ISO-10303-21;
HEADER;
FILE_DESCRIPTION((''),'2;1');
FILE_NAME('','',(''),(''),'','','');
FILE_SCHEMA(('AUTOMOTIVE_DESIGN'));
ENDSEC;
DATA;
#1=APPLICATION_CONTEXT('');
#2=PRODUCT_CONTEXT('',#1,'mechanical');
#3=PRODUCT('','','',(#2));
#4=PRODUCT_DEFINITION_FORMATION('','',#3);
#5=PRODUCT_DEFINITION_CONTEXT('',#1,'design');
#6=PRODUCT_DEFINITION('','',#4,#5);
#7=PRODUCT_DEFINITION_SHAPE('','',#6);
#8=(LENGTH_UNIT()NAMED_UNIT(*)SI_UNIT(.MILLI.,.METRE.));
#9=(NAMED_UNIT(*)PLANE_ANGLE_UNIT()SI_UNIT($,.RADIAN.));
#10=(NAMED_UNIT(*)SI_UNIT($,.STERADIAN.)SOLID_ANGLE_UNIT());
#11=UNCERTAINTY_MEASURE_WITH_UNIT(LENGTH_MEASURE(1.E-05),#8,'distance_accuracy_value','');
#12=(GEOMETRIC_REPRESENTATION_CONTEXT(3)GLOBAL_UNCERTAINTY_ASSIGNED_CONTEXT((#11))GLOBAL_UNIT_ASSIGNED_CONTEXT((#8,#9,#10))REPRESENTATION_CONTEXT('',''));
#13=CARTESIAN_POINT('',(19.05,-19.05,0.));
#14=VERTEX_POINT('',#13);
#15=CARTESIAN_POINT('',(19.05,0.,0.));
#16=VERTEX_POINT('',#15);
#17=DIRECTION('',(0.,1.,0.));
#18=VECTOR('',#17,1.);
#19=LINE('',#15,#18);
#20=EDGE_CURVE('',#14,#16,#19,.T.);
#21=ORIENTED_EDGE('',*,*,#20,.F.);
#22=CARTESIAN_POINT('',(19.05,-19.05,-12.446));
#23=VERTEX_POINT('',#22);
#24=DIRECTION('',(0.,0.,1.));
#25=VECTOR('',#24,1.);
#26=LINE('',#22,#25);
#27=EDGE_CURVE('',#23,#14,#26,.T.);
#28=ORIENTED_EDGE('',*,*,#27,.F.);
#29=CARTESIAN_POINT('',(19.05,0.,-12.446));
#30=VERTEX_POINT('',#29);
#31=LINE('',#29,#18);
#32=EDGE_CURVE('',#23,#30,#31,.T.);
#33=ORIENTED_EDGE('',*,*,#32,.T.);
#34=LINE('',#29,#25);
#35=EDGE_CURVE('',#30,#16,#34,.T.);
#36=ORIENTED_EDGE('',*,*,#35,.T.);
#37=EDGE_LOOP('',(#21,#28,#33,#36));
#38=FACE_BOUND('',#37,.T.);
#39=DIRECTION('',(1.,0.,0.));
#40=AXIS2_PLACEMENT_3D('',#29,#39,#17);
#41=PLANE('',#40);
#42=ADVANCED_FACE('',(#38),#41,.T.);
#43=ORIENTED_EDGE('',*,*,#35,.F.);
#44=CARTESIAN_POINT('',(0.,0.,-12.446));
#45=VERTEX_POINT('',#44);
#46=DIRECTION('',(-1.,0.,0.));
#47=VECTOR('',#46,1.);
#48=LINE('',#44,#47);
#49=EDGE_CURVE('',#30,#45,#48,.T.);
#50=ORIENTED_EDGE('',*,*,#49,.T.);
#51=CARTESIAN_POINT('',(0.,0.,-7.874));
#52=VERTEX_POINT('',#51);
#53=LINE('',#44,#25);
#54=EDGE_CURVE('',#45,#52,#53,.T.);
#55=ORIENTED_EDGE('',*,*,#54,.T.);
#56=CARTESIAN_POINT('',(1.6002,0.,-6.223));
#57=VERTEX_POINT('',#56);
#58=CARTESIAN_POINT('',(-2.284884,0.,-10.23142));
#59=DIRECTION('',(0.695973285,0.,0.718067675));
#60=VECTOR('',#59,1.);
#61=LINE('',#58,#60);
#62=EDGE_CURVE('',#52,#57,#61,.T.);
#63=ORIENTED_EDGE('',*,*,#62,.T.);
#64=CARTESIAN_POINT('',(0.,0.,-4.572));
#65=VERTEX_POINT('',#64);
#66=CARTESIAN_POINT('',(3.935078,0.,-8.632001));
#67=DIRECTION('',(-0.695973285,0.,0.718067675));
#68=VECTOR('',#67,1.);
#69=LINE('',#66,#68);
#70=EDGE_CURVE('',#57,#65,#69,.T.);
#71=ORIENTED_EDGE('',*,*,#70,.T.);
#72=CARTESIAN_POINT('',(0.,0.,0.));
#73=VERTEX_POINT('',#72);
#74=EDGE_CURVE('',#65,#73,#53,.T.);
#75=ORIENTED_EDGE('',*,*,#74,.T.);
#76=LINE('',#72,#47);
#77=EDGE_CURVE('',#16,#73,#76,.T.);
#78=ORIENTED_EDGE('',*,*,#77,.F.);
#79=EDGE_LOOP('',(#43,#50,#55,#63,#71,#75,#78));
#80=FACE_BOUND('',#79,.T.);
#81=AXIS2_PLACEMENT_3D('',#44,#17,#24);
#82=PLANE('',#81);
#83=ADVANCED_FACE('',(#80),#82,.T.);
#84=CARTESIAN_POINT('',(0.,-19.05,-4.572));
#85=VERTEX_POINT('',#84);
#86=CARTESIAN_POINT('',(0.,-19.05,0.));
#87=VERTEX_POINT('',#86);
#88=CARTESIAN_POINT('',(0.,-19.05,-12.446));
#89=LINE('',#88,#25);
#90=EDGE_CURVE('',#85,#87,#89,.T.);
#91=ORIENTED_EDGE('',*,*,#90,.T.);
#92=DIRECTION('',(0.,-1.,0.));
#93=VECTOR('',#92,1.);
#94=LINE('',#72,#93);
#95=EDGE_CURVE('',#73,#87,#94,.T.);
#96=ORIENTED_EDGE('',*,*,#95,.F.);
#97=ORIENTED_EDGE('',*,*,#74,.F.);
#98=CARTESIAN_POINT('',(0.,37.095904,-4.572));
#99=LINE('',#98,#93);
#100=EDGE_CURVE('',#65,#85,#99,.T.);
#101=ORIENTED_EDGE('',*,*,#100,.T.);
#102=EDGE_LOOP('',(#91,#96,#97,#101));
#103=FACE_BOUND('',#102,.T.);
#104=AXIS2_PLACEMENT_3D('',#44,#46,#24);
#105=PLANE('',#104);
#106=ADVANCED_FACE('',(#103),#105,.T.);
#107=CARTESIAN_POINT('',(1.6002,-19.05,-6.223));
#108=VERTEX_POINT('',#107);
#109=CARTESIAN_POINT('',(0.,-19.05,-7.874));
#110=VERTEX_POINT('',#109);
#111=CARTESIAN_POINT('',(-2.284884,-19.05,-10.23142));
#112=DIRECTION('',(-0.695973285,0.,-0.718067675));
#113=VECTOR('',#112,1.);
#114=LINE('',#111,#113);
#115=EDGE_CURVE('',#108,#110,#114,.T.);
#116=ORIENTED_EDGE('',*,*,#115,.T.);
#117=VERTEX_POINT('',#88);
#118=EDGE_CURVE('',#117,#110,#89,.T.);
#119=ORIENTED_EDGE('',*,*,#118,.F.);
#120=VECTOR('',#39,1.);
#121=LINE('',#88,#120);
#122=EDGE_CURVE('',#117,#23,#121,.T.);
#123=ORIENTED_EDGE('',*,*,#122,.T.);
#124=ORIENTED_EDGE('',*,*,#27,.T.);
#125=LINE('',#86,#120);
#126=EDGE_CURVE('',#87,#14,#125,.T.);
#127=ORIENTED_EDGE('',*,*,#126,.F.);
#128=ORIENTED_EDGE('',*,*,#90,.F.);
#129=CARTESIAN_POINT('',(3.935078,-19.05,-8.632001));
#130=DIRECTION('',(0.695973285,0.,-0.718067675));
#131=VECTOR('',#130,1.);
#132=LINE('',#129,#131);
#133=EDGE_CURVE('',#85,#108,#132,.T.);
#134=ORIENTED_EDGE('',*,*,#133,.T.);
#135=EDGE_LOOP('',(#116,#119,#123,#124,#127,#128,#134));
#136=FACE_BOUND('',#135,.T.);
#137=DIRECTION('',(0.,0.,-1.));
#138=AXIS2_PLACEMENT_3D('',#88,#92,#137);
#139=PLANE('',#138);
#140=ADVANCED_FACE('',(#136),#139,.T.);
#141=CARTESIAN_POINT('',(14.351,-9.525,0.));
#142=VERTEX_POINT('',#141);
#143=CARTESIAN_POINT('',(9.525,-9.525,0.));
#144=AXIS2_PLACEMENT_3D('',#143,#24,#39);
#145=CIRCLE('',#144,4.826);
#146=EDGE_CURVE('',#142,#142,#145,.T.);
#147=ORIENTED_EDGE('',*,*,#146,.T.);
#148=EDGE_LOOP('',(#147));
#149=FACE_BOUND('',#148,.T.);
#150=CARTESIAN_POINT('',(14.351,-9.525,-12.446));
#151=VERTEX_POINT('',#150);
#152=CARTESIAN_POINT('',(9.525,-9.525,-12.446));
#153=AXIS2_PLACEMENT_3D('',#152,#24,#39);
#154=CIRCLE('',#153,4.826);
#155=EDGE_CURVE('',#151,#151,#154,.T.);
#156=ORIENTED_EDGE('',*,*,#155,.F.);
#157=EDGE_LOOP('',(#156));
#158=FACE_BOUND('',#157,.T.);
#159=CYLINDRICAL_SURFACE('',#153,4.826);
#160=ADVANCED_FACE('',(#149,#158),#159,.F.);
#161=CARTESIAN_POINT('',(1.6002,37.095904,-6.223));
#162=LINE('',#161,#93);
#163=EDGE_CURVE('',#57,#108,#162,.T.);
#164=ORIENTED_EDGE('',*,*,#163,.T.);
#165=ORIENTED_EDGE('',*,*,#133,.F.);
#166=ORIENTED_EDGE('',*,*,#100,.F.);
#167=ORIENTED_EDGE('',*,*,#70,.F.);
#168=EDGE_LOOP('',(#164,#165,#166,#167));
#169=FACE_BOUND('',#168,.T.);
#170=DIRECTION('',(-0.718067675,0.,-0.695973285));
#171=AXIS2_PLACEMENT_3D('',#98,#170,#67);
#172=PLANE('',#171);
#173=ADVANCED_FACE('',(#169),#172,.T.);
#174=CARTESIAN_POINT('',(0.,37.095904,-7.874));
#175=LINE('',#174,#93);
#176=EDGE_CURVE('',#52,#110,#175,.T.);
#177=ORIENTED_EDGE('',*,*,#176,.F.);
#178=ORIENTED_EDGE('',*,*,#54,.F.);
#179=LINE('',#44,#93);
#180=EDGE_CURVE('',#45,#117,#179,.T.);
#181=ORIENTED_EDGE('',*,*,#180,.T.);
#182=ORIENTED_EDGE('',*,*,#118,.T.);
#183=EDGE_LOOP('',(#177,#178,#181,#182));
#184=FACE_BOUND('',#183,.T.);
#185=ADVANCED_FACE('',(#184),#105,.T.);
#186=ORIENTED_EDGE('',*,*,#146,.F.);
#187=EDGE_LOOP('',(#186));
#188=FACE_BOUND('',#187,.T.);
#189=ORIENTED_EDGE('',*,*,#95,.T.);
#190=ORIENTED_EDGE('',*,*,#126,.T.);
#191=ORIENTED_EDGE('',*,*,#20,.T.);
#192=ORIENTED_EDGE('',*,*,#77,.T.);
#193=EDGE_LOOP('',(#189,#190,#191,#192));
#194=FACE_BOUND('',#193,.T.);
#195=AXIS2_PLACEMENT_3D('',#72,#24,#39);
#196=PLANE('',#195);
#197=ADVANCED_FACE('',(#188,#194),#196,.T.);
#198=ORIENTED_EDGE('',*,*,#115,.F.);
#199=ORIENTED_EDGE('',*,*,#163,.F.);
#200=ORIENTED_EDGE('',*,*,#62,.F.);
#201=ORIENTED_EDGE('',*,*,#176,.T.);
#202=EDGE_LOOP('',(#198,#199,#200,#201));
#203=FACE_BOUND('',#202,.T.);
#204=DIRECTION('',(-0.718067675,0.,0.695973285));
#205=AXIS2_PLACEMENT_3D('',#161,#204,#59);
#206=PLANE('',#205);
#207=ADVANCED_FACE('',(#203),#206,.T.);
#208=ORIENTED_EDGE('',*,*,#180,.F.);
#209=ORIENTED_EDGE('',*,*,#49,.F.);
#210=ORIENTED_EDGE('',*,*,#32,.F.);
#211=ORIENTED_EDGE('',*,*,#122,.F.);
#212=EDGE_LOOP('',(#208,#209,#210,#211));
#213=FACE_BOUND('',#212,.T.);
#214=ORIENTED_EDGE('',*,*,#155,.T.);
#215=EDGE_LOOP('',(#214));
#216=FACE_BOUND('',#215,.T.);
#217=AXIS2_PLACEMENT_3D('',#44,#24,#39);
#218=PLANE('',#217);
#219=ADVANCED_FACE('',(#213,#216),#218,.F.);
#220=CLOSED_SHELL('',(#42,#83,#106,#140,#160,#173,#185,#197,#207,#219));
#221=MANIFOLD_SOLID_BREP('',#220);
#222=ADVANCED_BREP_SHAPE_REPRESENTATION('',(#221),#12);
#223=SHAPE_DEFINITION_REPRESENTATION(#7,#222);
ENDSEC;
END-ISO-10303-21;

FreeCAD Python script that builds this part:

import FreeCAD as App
import Part
import Sketcher
Q = App.Units.Quantity


def add_polygon(sketch, points):
    """Adds a closed chain of lines whose ends are joined by coincident constraints."""
    first, n = sketch.GeometryCount, len(points)
    for a, b in zip(points, points[1:] + points[:1]):
        sketch.addGeometry(Part.LineSegment(App.Vector(*a, 0), App.Vector(*b, 0)), False)
    for i in range(n):
        sketch.addConstraint(Sketcher.Constraint("Coincident", first + i, 2, first + (i + 1) % n, 1))

doc = App.newDocument("Part")
params = doc.addObject("Spreadsheet::Sheet", "Params")
for row, (alias, value) in enumerate([
    ("sketch1_diameter", "0.38 in"),
    ("sketch1_width", "0.75 in"),
    ("pad1_length", "0.49 in"),
], start=1):
    params.set(f"A{row}", alias)
    params.set(f"B{row}", "=" + value)
    params.setAlias(f"B{row}", alias)

body = doc.addObject("PartDesign::Body", "Body")

sketch1 = body.newObject("Sketcher::SketchObject", "Sketch")
sketch1.AttachmentSupport = (doc.getObject("XY_Plane"), [""])
sketch1.MapMode = "FlatFace"
add_polygon(sketch1, [(0, 0), (0, -19.1), (19.1, -19.1), (19.1, 0)])
sketch1.addGeometry(Part.Circle(App.Vector(9.5, -9.5, 0), App.Vector(0, 0, 1), 4.8), False)
sketch1.addConstraint([
    Sketcher.Constraint("Vertical", 0),
    Sketcher.Constraint("Horizontal", 1),
    Sketcher.Constraint("Vertical", 2),
    Sketcher.Constraint("Horizontal", 3),
    Sketcher.Constraint("Coincident", 3, 2, -1, 1),
    Sketcher.Constraint("Equal", 3, 0),
    Sketcher.Constraint("Diameter", 4, Q("0.38 in")),
    Sketcher.Constraint("DistanceX", 1, 1, 1, 2, Q("0.75 in")),
    Sketcher.Constraint("DistanceX", -1, 1, 4, 3, Q("0.375 in")),
    Sketcher.Constraint("DistanceY", 4, 3, -1, 1, Q("0.375 in")),
])
sketch1.setExpression("Constraints[10]", "Params.sketch1_diameter")
sketch1.setExpression("Constraints[11]", "Params.sketch1_width")
pad1 = body.newObject("PartDesign::Pad", "Pad")
pad1.Profile = sketch1
pad1.setExpression("Length", "Params.pad1_length")
pad1.Reversed = True

sketch2 = body.newObject("Sketcher::SketchObject", "Sketch001")
sketch2.AttachmentSupport = (doc.getObject("XZ_Plane"), [""])
sketch2.MapMode = "FlatFace"
add_polygon(sketch2, [(-35.7, 32.2), (0, -4.6), (1.6, -6.2), (0, -7.9), (-35.7, -44.7), (-138.1, -44.7), (-138.1, 32.2)])
sketch2.addConstraint([
    Sketcher.Constraint("Horizontal", 4),
    Sketcher.Constraint("Vertical", 5),
    Sketcher.Constraint("Horizontal", 6),
    Sketcher.Constraint("PointOnObject", 0, 2, -2),
    Sketcher.Constraint("PointOnObject", 2, 2, -2),
    Sketcher.Constraint("Parallel", 0, 1),
    Sketcher.Constraint("Parallel", 2, 3),
    Sketcher.Constraint("Vertical", 3, 2, 6, 2),
    Sketcher.Constraint("Equal", 1, 2),
    Sketcher.Constraint("DistanceY", 0, 2, -1, 1, Q("0.18 in")),
    Sketcher.Constraint("DistanceY", 2, 2, -1, 1, Q("0.31 in")),
    Sketcher.Constraint("DistanceX", -1, 1, 1, 2, Q("0.063 in")),
    Sketcher.Constraint("DistanceX", 4, 2, 4, 1, Q("102.452641 mm")),
    Sketcher.Constraint("DistanceY", 5, 1, 5, 2, Q("76.86993 mm")),
])
pocket1 = body.newObject("PartDesign::Pocket", "Pocket")
pocket1.Profile = sketch2
pocket1.Type = "ThroughAll"
pocket1.Midplane = True

doc.recompute()
